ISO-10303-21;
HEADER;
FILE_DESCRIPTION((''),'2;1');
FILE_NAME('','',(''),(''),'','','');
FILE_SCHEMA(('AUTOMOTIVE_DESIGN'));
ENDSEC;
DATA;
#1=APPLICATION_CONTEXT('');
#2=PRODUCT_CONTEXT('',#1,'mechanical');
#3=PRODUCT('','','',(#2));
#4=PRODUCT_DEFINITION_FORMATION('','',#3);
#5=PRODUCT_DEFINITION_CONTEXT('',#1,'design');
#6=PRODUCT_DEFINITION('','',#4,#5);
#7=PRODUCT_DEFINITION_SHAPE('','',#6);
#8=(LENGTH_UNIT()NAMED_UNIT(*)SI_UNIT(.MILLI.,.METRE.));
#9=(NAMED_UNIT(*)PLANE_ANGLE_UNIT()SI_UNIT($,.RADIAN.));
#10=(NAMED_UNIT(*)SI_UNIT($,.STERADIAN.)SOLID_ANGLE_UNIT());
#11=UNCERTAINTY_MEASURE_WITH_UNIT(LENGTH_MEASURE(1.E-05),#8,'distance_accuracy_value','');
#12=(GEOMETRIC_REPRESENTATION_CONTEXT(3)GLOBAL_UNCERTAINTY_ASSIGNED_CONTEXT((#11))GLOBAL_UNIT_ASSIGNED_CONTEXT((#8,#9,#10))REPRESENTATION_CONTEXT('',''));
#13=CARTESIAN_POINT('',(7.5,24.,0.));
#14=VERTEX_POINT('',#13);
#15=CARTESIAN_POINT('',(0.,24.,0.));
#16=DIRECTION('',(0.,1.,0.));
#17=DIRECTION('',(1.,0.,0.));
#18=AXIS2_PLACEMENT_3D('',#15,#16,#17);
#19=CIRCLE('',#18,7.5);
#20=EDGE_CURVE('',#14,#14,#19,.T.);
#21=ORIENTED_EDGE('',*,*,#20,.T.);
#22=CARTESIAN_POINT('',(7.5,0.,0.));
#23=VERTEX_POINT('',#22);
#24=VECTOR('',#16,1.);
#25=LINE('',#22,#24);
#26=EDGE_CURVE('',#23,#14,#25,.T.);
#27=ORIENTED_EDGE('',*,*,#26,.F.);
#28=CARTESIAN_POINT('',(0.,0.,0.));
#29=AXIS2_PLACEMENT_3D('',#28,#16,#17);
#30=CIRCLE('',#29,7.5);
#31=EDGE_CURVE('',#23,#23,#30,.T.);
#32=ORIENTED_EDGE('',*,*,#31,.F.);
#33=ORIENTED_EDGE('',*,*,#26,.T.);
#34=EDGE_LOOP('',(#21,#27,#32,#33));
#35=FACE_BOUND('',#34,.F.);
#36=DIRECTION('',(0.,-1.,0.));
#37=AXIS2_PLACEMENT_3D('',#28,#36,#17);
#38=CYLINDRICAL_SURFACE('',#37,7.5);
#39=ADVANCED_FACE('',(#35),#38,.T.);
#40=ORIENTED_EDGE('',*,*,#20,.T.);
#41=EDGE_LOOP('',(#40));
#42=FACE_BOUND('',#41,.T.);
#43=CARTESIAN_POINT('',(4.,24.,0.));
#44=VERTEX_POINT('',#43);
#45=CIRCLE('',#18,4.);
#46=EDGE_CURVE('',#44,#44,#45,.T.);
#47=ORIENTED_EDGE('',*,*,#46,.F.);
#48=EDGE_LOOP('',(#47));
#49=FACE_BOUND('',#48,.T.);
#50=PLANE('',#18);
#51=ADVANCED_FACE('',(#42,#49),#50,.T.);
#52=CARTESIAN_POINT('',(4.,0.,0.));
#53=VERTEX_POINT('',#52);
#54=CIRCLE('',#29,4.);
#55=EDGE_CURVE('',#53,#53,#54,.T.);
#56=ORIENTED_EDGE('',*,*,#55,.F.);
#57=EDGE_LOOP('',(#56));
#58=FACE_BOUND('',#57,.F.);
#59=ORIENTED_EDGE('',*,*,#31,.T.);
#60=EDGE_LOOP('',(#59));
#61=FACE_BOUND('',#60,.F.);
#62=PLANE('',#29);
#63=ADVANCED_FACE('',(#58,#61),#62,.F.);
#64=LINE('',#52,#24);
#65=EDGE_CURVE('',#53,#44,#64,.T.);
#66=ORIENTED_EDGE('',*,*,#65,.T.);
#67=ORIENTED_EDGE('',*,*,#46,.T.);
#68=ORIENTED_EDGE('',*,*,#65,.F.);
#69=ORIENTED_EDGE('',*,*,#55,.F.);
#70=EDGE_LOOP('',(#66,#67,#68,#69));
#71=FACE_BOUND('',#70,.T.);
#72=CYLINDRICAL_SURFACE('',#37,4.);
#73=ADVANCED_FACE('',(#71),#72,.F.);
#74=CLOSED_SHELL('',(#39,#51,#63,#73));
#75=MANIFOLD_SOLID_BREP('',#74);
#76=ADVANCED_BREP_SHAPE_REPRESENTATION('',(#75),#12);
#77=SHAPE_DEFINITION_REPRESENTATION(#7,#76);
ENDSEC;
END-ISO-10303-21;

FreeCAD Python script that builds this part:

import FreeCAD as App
import Part
import Sketcher

doc = App.newDocument("Part")
body = doc.addObject("PartDesign::Body", "Body")

# Sketch on XZ plane
sketch1 = body.newObject("Sketcher::SketchObject", "Sketch")
sketch1.AttachmentSupport = (doc.getObject("XZ_Plane"), [""])
sketch1.MapMode = "FlatFace"
sketch1.addGeometry([
    Part.Circle(App.Vector(0, 0, 0), App.Vector(0, 0, 1), 7.5),
    Part.Circle(App.Vector(0, 0, 0), App.Vector(0, 0, 1), 4),
], False)
sketch1.addConstraint([
    Sketcher.Constraint("Coincident", 0, 3, -1, 1),
    Sketcher.Constraint("Coincident", 1, 3, -1, 1),
    Sketcher.Constraint("Diameter", 0, 15.0),
    Sketcher.Constraint("Diameter", 1, 8.0),
])
pad1 = body.newObject("PartDesign::Pad", "Pad")
pad1.Profile = sketch1
pad1.Length = 24
pad1.Reversed = True

doc.recompute()
